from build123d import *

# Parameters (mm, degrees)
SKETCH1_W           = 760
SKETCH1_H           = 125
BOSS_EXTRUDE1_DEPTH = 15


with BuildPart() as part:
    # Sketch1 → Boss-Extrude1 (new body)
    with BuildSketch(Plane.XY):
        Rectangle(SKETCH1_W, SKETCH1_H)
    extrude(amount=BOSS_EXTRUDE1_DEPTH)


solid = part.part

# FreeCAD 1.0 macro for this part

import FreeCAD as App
import Part
import Sketcher
from FreeCAD import Vector

doc = App.newDocument("Part")
body = doc.addObject("PartDesign::Body", "Body")

sketch1 = body.newObject("Sketcher::SketchObject", "Sketch")
sketch1.AttachmentSupport = (doc.getObject("XY_Plane"), [""])
sketch1.MapMode = "FlatFace"
sketch1.addGeometry(Part.LineSegment(Vector(-380, 62.5, 0), Vector(-380, -62.5, 0)), False)
sketch1.addGeometry(Part.LineSegment(Vector(-380, -62.5, 0), Vector(380, -62.5, 0)), False)
sketch1.addGeometry(Part.LineSegment(Vector(380, -62.5, 0), Vector(380, 62.5, 0)), False)
sketch1.addGeometry(Part.LineSegment(Vector(380, 62.5, 0), Vector(-380, 62.5, 0)), False)
sketch1.addConstraint(Sketcher.Constraint("Coincident", 0, 2, 1, 1))
sketch1.addConstraint(Sketcher.Constraint("Coincident", 1, 2, 2, 1))
sketch1.addConstraint(Sketcher.Constraint("Coincident", 2, 2, 3, 1))
sketch1.addConstraint(Sketcher.Constraint("Coincident", 3, 2, 0, 1))
sketch1.addConstraint(Sketcher.Constraint("Vertical", 0))
sketch1.addConstraint(Sketcher.Constraint("Horizontal", 1))
sketch1.addConstraint(Sketcher.Constraint("Vertical", 2))
sketch1.addConstraint(Sketcher.Constraint("Horizontal", 3))
sketch1.addConstraint(Sketcher.Constraint("Symmetric", 0, 2, 2, 2, -1, 1))
sketch1.addConstraint(Sketcher.Constraint("DistanceX", 1, 1, 1, 2, 760.0))
sketch1.addConstraint(Sketcher.Constraint("DistanceY", 0, 2, 0, 1, 125.0))
pad1 = body.newObject("PartDesign::Pad", "Pad")
pad1.Profile = sketch1
pad1.Length = 15

doc.recompute()
